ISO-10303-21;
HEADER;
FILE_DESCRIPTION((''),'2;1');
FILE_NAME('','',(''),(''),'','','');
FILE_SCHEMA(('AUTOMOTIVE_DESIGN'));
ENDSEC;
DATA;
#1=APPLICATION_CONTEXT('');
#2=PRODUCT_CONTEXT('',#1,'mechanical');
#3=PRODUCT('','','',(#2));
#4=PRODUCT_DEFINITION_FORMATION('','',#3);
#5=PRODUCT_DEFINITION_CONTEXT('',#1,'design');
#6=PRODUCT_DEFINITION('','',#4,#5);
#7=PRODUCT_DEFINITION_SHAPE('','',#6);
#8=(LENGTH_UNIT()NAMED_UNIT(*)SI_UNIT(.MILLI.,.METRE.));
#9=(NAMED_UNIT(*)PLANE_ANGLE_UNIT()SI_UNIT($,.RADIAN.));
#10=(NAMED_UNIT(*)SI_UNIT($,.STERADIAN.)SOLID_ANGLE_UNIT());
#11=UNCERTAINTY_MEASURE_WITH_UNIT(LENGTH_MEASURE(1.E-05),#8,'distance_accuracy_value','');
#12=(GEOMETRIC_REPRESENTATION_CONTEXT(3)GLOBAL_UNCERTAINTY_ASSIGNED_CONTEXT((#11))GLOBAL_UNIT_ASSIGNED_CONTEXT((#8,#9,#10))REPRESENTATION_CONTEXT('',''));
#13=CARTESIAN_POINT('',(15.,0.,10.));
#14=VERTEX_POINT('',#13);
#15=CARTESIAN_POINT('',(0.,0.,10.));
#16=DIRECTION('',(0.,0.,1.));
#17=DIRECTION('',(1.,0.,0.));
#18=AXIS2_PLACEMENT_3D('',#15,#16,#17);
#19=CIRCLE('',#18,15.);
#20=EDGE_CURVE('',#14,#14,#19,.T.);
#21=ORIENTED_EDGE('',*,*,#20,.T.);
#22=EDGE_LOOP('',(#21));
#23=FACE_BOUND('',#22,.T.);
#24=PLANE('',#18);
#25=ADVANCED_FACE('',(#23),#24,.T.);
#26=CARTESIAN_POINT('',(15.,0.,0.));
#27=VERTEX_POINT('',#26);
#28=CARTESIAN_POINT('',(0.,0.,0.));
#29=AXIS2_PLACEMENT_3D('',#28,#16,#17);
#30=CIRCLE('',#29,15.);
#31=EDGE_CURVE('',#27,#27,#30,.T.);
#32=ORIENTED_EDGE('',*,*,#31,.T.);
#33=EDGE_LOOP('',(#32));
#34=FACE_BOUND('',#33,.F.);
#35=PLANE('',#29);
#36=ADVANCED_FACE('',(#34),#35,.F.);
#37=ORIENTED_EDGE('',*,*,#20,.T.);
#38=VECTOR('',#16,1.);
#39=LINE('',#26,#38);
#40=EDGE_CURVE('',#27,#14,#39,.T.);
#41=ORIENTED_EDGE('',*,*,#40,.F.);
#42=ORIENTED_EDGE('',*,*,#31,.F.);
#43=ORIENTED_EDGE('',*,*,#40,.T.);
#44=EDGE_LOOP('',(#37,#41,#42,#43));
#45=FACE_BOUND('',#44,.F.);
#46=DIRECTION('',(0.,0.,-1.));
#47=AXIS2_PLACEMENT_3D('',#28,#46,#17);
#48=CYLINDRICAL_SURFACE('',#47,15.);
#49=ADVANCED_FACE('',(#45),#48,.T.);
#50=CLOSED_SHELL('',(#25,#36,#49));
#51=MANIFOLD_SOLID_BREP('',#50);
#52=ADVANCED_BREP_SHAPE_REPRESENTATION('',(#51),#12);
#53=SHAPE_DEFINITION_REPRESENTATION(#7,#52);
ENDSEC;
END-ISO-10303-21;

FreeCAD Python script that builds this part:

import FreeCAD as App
import Part
import Sketcher

doc = App.newDocument("Part")
params = doc.addObject("Spreadsheet::Sheet", "Params")
for row, (alias, value) in enumerate([
    ("sketch1_diameter", "30 mm"),
    ("pad1_length", "10 mm"),
], start=1):
    params.set(f"A{row}", alias)
    params.set(f"B{row}", "=" + value)
    params.setAlias(f"B{row}", alias)

body = doc.addObject("PartDesign::Body", "Body")

# Sketch on XY plane
sketch1 = body.newObject("Sketcher::SketchObject", "Sketch")
sketch1.AttachmentSupport = (doc.getObject("XY_Plane"), [""])
sketch1.MapMode = "FlatFace"
sketch1.addGeometry(Part.Circle(App.Vector(0, 0, 0), App.Vector(0, 0, 1), 15), False)
sketch1.addConstraint([
    Sketcher.Constraint("Coincident", 0, 3, -1, 1),
    Sketcher.Constraint("Diameter", 0, 30.0),
])
sketch1.setExpression("Constraints[1]", "Params.sketch1_diameter")
pad1 = body.newObject("PartDesign::Pad", "Pad")
pad1.Profile = sketch1
pad1.setExpression("Length", "Params.pad1_length")

doc.recompute()
